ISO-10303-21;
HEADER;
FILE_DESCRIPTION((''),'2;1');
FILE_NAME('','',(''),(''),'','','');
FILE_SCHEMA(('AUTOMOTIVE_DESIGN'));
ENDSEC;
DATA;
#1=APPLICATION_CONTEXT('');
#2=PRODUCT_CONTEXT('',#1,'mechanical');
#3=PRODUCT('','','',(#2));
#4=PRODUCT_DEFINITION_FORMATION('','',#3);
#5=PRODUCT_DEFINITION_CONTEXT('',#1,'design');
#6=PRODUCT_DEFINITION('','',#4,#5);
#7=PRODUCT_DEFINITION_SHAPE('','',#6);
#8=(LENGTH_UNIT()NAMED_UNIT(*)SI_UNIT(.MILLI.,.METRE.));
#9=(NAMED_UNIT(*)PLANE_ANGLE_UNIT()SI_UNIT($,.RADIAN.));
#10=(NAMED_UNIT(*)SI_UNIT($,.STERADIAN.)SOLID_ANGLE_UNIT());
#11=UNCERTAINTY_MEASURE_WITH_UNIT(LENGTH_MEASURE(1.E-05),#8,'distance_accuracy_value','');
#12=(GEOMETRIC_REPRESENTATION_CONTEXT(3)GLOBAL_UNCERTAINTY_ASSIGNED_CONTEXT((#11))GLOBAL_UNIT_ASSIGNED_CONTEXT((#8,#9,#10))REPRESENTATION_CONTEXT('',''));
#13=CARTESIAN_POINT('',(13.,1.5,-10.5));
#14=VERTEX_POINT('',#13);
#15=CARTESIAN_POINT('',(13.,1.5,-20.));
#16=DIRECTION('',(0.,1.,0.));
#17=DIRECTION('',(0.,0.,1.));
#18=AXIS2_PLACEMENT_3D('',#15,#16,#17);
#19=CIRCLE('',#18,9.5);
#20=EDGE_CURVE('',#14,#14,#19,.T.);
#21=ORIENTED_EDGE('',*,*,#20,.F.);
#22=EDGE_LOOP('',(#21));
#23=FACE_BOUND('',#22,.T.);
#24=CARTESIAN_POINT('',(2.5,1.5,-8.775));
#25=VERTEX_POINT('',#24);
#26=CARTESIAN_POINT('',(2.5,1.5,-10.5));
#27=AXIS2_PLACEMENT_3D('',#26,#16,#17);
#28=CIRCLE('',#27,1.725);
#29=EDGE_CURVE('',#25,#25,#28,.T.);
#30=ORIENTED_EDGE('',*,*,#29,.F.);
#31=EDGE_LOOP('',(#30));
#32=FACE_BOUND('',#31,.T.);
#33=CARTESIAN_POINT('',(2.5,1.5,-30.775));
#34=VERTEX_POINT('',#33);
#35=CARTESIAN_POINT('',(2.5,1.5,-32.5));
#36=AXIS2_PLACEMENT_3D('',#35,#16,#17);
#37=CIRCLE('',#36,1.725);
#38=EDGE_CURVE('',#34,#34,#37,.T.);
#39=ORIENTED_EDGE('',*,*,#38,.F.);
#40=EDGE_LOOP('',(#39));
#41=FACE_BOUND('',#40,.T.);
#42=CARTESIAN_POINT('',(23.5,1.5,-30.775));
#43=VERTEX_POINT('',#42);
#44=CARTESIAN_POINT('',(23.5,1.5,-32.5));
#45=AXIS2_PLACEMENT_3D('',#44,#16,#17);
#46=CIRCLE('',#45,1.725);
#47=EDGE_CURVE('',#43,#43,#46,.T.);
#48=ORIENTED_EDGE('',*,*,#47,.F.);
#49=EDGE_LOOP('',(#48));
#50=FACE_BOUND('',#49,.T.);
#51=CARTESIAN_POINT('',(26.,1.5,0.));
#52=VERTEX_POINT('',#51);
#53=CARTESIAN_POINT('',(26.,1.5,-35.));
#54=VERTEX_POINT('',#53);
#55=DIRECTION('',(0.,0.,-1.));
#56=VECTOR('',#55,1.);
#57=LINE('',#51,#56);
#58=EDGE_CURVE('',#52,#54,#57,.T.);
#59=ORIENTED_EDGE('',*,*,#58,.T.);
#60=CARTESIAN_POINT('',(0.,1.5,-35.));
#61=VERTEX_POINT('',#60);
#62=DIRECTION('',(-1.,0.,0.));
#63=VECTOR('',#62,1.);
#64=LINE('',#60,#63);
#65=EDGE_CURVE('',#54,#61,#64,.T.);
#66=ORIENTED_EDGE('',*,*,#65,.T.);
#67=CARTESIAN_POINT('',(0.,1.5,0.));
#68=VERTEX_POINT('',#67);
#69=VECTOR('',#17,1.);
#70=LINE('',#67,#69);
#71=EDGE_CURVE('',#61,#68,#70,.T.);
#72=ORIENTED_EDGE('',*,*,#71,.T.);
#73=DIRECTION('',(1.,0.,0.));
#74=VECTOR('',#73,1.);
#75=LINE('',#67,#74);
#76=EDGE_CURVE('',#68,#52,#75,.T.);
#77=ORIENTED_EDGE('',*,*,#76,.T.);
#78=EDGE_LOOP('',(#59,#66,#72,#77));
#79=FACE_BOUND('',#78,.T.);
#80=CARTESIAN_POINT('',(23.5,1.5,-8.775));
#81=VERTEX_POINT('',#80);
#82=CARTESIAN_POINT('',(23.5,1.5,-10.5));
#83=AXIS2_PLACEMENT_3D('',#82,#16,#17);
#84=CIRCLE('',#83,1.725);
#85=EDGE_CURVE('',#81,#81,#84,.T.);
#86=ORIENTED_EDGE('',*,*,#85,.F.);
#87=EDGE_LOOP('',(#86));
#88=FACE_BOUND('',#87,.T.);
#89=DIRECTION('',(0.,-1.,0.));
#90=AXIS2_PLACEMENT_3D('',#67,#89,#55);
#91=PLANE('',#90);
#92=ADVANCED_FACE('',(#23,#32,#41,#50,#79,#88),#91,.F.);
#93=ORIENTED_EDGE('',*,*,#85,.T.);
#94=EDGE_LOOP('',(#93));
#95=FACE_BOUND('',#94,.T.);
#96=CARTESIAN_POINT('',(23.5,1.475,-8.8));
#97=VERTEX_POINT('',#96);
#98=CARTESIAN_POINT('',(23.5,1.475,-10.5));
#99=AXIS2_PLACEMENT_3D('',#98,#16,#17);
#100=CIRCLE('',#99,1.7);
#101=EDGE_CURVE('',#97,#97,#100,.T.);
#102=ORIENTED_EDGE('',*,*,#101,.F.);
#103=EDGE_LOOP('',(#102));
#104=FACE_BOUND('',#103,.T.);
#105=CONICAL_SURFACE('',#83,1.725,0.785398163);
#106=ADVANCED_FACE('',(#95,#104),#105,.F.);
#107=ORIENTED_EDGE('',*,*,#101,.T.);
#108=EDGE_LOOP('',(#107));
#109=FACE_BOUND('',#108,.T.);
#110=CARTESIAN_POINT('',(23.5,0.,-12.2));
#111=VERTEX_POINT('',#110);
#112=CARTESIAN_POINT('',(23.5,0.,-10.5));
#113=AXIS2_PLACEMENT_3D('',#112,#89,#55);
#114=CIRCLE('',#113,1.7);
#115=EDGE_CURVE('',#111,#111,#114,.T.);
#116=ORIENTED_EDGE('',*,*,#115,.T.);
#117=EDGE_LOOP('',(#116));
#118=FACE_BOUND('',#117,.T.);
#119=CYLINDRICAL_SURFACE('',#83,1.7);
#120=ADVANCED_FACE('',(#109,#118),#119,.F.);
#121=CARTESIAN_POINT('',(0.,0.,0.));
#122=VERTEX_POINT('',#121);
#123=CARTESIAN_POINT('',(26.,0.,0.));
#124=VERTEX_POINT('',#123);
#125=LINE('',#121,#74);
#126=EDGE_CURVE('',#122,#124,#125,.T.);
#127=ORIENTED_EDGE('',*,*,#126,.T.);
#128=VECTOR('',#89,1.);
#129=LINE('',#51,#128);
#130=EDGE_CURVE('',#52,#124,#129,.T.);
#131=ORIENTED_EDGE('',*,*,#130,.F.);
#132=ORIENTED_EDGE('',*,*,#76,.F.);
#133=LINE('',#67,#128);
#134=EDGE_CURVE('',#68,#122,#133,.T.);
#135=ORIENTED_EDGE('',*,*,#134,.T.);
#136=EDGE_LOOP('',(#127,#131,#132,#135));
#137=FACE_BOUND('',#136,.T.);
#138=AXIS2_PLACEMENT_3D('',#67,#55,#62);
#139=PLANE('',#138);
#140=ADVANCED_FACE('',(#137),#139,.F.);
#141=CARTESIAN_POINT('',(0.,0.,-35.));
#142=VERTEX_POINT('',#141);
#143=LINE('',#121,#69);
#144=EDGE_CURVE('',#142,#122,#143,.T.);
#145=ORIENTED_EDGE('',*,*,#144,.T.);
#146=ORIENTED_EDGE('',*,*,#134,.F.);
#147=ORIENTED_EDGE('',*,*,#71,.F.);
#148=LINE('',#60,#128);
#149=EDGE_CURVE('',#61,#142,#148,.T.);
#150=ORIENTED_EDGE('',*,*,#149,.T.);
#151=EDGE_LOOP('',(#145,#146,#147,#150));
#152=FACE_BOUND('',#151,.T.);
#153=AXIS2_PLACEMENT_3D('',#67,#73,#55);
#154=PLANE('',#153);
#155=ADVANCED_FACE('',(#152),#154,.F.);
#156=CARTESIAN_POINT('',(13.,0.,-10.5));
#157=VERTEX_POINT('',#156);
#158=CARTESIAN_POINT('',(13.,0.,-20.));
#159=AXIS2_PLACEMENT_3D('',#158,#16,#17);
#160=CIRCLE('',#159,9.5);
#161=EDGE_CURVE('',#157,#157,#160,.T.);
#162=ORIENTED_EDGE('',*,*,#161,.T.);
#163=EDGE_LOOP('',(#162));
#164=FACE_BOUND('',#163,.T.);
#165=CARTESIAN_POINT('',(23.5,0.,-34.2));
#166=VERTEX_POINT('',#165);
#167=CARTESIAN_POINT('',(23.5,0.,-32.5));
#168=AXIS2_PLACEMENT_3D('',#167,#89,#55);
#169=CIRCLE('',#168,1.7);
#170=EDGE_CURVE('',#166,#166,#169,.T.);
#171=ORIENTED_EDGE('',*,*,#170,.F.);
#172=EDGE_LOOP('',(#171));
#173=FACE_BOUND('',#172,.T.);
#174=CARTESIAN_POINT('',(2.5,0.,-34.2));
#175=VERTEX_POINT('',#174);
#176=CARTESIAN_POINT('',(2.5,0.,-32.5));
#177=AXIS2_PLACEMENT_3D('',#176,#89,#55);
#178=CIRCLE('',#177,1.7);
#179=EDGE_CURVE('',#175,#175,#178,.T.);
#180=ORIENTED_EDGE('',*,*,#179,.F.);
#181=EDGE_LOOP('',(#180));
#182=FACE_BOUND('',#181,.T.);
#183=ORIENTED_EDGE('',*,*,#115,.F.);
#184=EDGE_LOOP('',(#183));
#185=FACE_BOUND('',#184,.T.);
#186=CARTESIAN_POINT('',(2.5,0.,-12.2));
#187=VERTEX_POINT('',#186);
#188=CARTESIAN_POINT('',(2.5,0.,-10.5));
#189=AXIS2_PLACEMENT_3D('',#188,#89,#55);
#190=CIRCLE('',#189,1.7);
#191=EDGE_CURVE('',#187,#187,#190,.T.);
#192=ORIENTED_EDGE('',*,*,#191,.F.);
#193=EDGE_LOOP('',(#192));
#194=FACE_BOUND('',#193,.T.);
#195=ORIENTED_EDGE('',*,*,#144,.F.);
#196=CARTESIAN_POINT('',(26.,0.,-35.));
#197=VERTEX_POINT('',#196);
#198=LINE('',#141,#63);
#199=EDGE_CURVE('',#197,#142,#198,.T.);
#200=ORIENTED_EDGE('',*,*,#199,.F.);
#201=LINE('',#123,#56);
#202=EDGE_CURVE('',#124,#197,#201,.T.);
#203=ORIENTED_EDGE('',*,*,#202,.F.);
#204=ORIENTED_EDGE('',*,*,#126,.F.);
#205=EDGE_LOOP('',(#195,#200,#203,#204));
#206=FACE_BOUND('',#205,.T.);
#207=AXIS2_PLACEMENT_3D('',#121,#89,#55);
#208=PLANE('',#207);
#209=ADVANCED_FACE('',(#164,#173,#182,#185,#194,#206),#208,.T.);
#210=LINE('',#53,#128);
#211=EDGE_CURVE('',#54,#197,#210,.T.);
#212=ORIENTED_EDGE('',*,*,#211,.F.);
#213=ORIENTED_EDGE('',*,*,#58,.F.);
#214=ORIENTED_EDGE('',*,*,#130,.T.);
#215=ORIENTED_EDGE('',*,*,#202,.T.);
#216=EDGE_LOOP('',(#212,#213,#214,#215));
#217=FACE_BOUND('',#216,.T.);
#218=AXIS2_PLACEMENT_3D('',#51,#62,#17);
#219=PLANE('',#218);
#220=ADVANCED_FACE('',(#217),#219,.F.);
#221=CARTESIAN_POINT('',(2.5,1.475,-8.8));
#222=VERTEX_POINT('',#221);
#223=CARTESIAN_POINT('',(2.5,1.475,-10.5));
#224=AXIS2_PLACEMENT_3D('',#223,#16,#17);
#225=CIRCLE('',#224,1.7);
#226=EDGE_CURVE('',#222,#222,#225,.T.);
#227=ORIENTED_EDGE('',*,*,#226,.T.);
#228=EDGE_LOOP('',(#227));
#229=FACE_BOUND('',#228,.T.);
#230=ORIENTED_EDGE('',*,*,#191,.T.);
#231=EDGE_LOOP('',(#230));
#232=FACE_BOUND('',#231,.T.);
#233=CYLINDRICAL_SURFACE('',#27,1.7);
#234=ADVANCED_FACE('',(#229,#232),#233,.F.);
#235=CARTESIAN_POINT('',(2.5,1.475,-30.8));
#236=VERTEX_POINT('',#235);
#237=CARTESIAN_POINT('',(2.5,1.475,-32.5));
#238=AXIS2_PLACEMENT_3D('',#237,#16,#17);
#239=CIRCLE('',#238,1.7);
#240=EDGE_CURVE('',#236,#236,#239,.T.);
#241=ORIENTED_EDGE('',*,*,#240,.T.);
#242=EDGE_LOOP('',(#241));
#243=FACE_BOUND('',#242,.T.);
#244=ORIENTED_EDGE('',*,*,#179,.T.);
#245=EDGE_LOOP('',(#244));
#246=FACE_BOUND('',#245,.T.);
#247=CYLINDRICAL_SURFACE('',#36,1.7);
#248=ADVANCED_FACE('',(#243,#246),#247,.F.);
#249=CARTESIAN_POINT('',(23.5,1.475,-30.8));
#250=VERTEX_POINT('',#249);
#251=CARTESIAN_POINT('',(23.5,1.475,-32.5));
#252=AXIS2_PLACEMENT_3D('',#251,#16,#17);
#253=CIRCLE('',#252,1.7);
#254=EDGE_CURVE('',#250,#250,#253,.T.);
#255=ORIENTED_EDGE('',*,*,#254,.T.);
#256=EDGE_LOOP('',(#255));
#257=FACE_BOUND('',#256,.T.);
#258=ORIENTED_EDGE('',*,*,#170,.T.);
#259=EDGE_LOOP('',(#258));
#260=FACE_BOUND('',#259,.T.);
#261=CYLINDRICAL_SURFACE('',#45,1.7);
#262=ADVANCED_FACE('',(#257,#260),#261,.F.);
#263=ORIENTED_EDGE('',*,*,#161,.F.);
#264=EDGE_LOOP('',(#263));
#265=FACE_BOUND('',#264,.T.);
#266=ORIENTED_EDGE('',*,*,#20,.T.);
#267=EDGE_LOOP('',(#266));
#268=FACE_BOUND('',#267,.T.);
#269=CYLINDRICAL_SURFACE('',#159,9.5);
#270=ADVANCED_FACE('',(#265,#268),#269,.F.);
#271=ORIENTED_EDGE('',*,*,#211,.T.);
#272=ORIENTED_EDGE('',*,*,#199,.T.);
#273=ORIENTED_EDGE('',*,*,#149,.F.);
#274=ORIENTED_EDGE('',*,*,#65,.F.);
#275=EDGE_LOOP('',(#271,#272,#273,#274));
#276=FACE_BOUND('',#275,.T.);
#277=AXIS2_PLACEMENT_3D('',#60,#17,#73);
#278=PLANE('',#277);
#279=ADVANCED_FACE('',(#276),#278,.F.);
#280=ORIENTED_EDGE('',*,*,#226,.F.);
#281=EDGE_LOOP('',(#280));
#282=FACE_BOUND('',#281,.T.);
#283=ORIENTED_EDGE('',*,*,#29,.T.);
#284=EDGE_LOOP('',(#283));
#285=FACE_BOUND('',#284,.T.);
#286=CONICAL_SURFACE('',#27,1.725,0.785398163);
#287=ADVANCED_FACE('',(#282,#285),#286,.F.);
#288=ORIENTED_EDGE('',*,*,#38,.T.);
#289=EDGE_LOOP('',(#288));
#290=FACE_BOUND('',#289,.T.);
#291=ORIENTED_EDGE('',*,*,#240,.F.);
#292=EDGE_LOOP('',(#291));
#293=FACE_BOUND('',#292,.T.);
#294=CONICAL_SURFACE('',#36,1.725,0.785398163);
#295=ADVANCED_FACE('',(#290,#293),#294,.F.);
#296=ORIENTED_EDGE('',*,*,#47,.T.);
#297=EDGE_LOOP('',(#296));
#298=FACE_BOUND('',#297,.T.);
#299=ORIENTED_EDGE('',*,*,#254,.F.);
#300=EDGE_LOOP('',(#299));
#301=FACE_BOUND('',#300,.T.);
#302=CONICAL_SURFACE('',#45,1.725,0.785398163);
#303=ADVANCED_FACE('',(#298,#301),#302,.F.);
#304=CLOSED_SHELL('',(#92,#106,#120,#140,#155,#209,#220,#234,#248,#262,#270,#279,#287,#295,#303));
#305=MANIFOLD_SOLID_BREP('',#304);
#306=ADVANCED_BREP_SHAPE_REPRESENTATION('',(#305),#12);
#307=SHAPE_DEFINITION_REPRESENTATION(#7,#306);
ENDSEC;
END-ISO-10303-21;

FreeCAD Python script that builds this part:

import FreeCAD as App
import Part
import Sketcher
from FreeCAD import Vector
Q = App.Units.Quantity


def add_polygon(sketch, points):
    """Adds a closed chain of lines whose ends are joined by coincident constraints."""
    first, n = sketch.GeometryCount, len(points)
    for a, b in zip(points, points[1:] + points[:1]):
        sketch.addGeometry(Part.LineSegment(App.Vector(*a, 0), App.Vector(*b, 0)), False)
    for i in range(n):
        sketch.addConstraint(Sketcher.Constraint("Coincident", first + i, 2, first + (i + 1) % n, 1))

doc = App.newDocument("Part")
params = doc.addObject("Spreadsheet::Sheet", "Params")
for row, (alias, value) in enumerate([
    ("sketch1_width", "26 mm"),
    ("sketch1_height", "35 mm"),
    ("pad1_length", "1.5 mm"),
    ("sketch2_diameter", "3.4 mm"),
    ("hole_diameter", "3.4 mm"),
    ("hole_depth", "3 mm"),
    ("hole_csink_diameter", "3.45 mm"),
    ("sketch3_diameter", "19 mm"),
], start=1):
    params.set(f"A{row}", alias)
    params.set(f"B{row}", "=" + value)
    params.setAlias(f"B{row}", alias)

body = doc.addObject("PartDesign::Body", "Body")

sketch1 = doc.addObject("Sketcher::SketchObject", "Sketch")
body.addObject(sketch1)
sketch1.AttachmentSupport = (doc.XZ_Plane, [""])
sketch1.MapMode = "FlatFace"
add_polygon(sketch1, [(0, -35), (0, 0), (26, 0), (26, -35)])
sketch1.addConstraint([
    Sketcher.Constraint("Vertical", 0),
    Sketcher.Constraint("Horizontal", 1),
    Sketcher.Constraint("Vertical", 2),
    Sketcher.Constraint("Horizontal", 3),
    Sketcher.Constraint("Coincident", 0, 2, -1, 1),
    Sketcher.Constraint("DistanceX", 1, 1, 1, 2, Q("26 mm")),
    Sketcher.Constraint("DistanceY", 0, 1, 0, 2, Q("35 mm")),
])
sketch1.setExpression("Constraints[9]", "Params.sketch1_width")
sketch1.setExpression("Constraints[10]", "Params.sketch1_height")
pad1 = doc.addObject("PartDesign::Pad", "Pad")
body.addObject(pad1)
pad1.Profile = sketch1
pad1.setExpression("Length", "Params.pad1_length")
pad1.Reversed = True

sketch2 = doc.addObject("Sketcher::SketchObject", "Sketch001")
body.addObject(sketch2)
sketch2.AttachmentSupport = (doc.XZ_Plane, [""])
sketch2.MapMode = "FlatFace"
sketch2.AttachmentOffset = App.Placement(Vector(0, 0, -1.5), App.Rotation())
sketch2.addGeometry([
    Part.Circle(Vector(2.5, -32.5, 0), Vector(0, 0, 1), 1.7),
    Part.Circle(Vector(2.5, -10.5, 0), Vector(0, 0, 1), 1.7),
    Part.Circle(Vector(23.5, -10.5, 0), Vector(0, 0, 1), 1.7),
    Part.Circle(Vector(23.5, -32.5, 0), Vector(0, 0, 1), 1.7),
], False)
sketch2.addConstraint([
    Sketcher.Constraint("Equal", 0, 1),
    Sketcher.Constraint("Equal", 1, 2),
    Sketcher.Constraint("Equal", 2, 3),
    Sketcher.Constraint("Horizontal", 1, 3, 2, 3),
    Sketcher.Constraint("Horizontal", 0, 3, 3, 3),
    Sketcher.Constraint("Vertical", 0, 3, 1, 3),
    Sketcher.Constraint("Vertical", 2, 3, 3, 3),
    Sketcher.Constraint("Diameter", 0, Q("3.4 mm")),
    Sketcher.Constraint("DistanceY", 0, 3, 1, 3, Q("22 mm")),
    Sketcher.Constraint("DistanceX", 1, 3, 2, 3, Q("21 mm")),
    Sketcher.Constraint("DistanceX", -1, 1, 0, 3, Q("2.5 mm")),
    Sketcher.Constraint("DistanceY", 0, 3, -1, 1, Q("32.5 mm")),
])
sketch2.setExpression("Constraints[7]", "Params.sketch2_diameter")
doc.recompute()
hole = doc.addObject("PartDesign::Hole", "Hole")
body.addObject(hole)
hole.Profile = sketch2
hole.ThreadType = "None"
hole.setExpression("Diameter", "Params.hole_diameter")
hole.DepthType = "Dimension"
hole.setExpression("Depth", "Params.hole_depth")
hole.DrillPoint = "Flat"
hole.HoleCutType = "Countersink"
hole.setExpression("HoleCutDiameter", "Params.hole_csink_diameter")
hole.HoleCutCountersinkAngle = 90
hole.Reversed = True

sketch3 = doc.addObject("Sketcher::SketchObject", "Sketch002")
body.addObject(sketch3)
sketch3.AttachmentSupport = (doc.XZ_Plane, [""])
sketch3.MapMode = "FlatFace"
sketch3.AttachmentOffset = App.Placement(Vector(0, 0, -1.5), App.Rotation())
sketch3.addGeometry(Part.Circle(Vector(13, -20, 0), Vector(0, 0, 1), 10), False)
sketch3.addConstraint([
    Sketcher.Constraint("Diameter", 0, Q("19 mm")),
    Sketcher.Constraint("DistanceX", -1, 1, 0, 3, Q("13 mm")),
    Sketcher.Constraint("DistanceY", 0, 3, -1, 1, Q("20 mm")),
])
sketch3.setExpression("Constraints[0]", "Params.sketch3_diameter")
pocket1 = doc.addObject("PartDesign::Pocket", "Pocket")
body.addObject(pocket1)
pocket1.Profile = sketch3
pocket1.Type = "ThroughAll"
pocket1.Reversed = True

doc.recompute()
